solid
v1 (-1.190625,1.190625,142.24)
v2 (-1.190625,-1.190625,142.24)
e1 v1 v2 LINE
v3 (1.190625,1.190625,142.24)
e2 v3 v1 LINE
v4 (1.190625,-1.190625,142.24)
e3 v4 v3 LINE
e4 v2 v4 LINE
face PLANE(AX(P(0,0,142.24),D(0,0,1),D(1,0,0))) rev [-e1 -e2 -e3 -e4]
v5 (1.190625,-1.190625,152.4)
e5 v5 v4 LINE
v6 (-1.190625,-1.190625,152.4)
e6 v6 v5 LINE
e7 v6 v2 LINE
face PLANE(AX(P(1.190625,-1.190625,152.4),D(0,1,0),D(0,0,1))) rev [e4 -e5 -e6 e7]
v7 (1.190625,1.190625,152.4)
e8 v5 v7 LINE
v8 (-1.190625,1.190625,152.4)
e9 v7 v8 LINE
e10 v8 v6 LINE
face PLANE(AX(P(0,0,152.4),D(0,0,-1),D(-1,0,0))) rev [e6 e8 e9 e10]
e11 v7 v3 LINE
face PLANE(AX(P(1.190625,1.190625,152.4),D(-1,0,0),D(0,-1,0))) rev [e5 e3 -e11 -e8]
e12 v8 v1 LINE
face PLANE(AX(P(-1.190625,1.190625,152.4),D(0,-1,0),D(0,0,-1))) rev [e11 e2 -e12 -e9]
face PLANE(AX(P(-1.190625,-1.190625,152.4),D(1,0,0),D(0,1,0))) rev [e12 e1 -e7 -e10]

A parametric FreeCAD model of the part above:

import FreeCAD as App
import Part
import Sketcher
Q = App.Units.Quantity

doc = App.newDocument("Part")
body = doc.addObject("PartDesign::Body", "Body")

sketch1 = body.newObject("Sketcher::SketchObject", "Sketch")
sketch1.AttachmentSupport = (doc.getObject("XY_Plane"), [""])
sketch1.MapMode = "FlatFace"
sketch1.addGeometry([
    Part.LineSegment(App.Vector(-1.2, 1.2, 0), App.Vector(-1.2, -1.2, 0)),
    Part.LineSegment(App.Vector(-1.2, -1.2, 0), App.Vector(1.2, -1.2, 0)),
    Part.LineSegment(App.Vector(1.2, -1.2, 0), App.Vector(1.2, 1.2, 0)),
    Part.LineSegment(App.Vector(1.2, 1.2, 0), App.Vector(-1.2, 1.2, 0)),
], False)
sketch1.addConstraint([
    Sketcher.Constraint("Coincident", 0, 2, 1, 1),
    Sketcher.Constraint("Coincident", 1, 2, 2, 1),
    Sketcher.Constraint("Coincident", 2, 2, 3, 1),
    Sketcher.Constraint("Coincident", 3, 2, 0, 1),
    Sketcher.Constraint("Vertical", 0),
    Sketcher.Constraint("Horizontal", 1),
    Sketcher.Constraint("Vertical", 2),
    Sketcher.Constraint("Horizontal", 3),
    Sketcher.Constraint("Symmetric", 0, 2, 2, 2, -1, 1),
    Sketcher.Constraint("Equal", 3, 0),
    Sketcher.Constraint("DistanceX", 1, 1, 1, 2, Q("0.09375 in")),
])
pad1 = body.newObject("PartDesign::Pad", "Pad")
pad1.Profile = sketch1
pad1.Type = "TwoLengths"
pad1.Length = Q("6 in")
pad1.Length2 = Q("6 in")

sketch2 = body.newObject("Sketcher::SketchObject", "Sketch001")
sketch2.AttachmentSupport = (doc.getObject("XY_Plane"), [""])
sketch2.MapMode = "FlatFace"
sketch2.AttachmentOffset = App.Placement(App.Vector(0, 0, 5.6 * 25.4), App.Rotation())
sketch2.addGeometry(Part.Circle(App.Vector(0, 0, 0), App.Vector(0, 0, 1), 8), False)
sketch2.addConstraint([
    Sketcher.Constraint("Coincident", 0, 3, -1, 1),
    Sketcher.Constraint("Diameter", 0, Q("16.237593 mm")),
])
pocket1 = body.newObject("PartDesign::Pocket", "Pocket")
pocket1.Profile = sketch2
pocket1.Type = "ThroughAll"

doc.recompute()
